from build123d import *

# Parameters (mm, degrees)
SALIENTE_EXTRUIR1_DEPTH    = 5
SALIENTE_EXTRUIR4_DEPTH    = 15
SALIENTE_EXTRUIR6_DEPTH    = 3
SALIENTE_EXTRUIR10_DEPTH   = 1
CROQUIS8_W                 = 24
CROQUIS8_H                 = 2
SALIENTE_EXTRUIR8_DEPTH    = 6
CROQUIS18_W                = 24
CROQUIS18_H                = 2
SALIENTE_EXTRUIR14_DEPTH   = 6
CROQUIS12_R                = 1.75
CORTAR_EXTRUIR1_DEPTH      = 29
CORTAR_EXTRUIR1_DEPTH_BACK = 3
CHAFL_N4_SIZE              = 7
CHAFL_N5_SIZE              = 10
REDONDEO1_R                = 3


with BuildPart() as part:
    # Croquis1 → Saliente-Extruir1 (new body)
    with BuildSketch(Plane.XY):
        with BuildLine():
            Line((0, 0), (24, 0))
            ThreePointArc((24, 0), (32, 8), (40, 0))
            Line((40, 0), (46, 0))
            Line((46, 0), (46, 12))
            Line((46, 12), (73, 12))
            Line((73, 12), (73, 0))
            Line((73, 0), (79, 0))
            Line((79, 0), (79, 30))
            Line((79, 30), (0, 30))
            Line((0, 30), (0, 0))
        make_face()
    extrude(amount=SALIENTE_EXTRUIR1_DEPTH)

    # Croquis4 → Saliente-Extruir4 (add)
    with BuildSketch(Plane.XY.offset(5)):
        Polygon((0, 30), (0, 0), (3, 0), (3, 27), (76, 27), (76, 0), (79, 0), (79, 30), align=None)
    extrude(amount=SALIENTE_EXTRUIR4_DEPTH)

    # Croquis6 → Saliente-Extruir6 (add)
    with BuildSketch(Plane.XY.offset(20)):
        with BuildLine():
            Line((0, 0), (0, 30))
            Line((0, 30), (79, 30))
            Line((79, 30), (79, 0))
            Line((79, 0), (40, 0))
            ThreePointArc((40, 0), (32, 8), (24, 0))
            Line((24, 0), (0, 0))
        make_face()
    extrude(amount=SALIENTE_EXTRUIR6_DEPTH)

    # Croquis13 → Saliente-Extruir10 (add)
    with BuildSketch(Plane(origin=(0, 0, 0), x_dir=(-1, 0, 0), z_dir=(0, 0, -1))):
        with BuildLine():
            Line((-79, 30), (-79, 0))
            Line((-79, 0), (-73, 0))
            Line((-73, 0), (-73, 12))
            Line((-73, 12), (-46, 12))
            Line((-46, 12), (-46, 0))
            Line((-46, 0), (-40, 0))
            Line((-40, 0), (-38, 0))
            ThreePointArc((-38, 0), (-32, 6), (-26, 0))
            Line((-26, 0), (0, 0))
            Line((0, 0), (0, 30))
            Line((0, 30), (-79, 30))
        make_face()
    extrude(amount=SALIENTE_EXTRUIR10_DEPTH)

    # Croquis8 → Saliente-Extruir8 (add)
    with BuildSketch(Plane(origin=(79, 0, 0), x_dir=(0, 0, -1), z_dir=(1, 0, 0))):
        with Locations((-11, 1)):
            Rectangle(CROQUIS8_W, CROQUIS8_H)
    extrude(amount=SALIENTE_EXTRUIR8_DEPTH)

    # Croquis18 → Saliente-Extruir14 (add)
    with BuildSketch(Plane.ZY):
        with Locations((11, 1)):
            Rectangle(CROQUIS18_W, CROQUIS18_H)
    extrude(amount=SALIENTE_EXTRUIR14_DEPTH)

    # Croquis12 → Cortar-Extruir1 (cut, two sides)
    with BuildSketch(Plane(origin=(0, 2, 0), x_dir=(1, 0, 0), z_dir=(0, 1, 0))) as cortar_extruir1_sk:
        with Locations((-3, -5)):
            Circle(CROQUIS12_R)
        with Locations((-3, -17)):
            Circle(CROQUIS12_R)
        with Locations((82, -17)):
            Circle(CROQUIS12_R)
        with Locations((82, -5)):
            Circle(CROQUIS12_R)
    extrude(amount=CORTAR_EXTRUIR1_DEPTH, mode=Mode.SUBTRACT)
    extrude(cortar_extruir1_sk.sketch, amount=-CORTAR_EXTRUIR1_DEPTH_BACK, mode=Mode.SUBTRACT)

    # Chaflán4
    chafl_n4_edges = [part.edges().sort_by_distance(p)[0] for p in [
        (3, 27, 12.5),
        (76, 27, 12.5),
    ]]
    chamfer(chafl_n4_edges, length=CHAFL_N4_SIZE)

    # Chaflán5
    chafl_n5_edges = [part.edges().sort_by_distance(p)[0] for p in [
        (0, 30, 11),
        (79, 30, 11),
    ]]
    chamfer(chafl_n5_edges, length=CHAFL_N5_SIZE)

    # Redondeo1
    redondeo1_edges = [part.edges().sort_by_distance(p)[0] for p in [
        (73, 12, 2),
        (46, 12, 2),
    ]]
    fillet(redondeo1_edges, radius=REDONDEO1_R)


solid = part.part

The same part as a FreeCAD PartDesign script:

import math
import FreeCAD as App
import Part
import Sketcher

V = App.Vector


def edges_at(feature, points):
    """Names of the edges that pass closest to the given points."""
    edges = feature.Shape.Edges
    near = lambda p: min(range(len(edges)), key=lambda i: edges[i].distToShape(Part.Vertex(*p))[0])
    return sorted({f"Edge{near(p) + 1}" for p in points})

doc = App.newDocument("Part")
params = doc.addObject("Spreadsheet::Sheet", "Params")
for row, (alias, value) in enumerate([
    ("sketch1_radius", "8 mm"),
    ("sketch1_width", "24 mm"),
    ("sketch1_width2", "6 mm"),
    ("sketch1_width3", "27 mm"),
    ("sketch1_height", "12 mm"),
    ("pad1_length", "5 mm"),
    ("sketch2_width", "3 mm"),
    ("sketch2_width2", "73 mm"),
    ("sketch2_height", "30 mm"),
    ("sketch2_height2", "27 mm"),
    ("pad2_length", "15 mm"),
    ("sketch3_radius", "8 mm"),
    ("sketch3_width", "24 mm"),
    ("sketch3_width2", "39 mm"),
    ("sketch3_height", "30 mm"),
    ("pad3_length", "3 mm"),
    ("sketch4_radius", "6 mm"),
    ("sketch4_width", "6 mm"),
    ("sketch4_width2", "27 mm"),
    ("sketch4_width3", "8 mm"),
    ("sketch4_width4", "26 mm"),
    ("pad4_length", "1 mm"),
    ("sketch5_width", "2 mm"),
    ("sketch5_height", "24 mm"),
    ("pad5_length", "6 mm"),
    ("sketch6_width", "2 mm"),
    ("sketch6_height", "24 mm"),
    ("pad6_length", "6 mm"),
    ("sketch7_diameter", "3.5 mm"),
    ("chamfer_size", "7 mm"),
    ("chamfer2_size", "10 mm"),
    ("fillet_radius", "3 mm"),
], start=1):
    params.set(f"A{row}", alias)
    params.set(f"B{row}", "=" + value)
    params.setAlias(f"B{row}", alias)

body = doc.addObject("PartDesign::Body", "Body")

# Sketch on XY plane
sketch1 = body.newObject("Sketcher::SketchObject", "Sketch")
sketch1.AttachmentSupport = (doc.getObject("XY_Plane"), [""])
sketch1.MapMode = "FlatFace"
sketch1.addGeometry([
    Part.LineSegment(V(0, 0, 0), V(24, 0, 0)),  # 0
    Part.ArcOfCircle(Part.Circle(V(32, 0, 0), V(0, 0, 1), 8), math.radians(0), math.radians(180)),  # 1
    Part.LineSegment(V(40, 0, 0), V(46, 0, 0)),  # 2
    Part.LineSegment(V(46, 0, 0), V(46, 12, 0)),  # 3
    Part.LineSegment(V(46, 12, 0), V(73, 12, 0)),  # 4
    Part.LineSegment(V(73, 12, 0), V(73, 0, 0)),  # 5
    Part.LineSegment(V(73, 0, 0), V(79, 0, 0)),  # 6
    Part.LineSegment(V(79, 0, 0), V(79, 30, 0)),  # 7
    Part.LineSegment(V(79, 30, 0), V(0, 30, 0)),  # 8
    Part.LineSegment(V(0, 30, 0), V(0, 0, 0)),  # 9
], False)
sketch1.addConstraint([
    Sketcher.Constraint("Coincident", 0, 2, 1, 2),
    Sketcher.Constraint("Coincident", 1, 1, 2, 1),
    Sketcher.Constraint("Coincident", 2, 2, 3, 1),
    Sketcher.Constraint("Coincident", 3, 2, 4, 1),
    Sketcher.Constraint("Coincident", 4, 2, 5, 1),
    Sketcher.Constraint("Coincident", 5, 2, 6, 1),
    Sketcher.Constraint("Coincident", 6, 2, 7, 1),
    Sketcher.Constraint("Coincident", 7, 2, 8, 1),
    Sketcher.Constraint("Coincident", 8, 2, 9, 1),
    Sketcher.Constraint("Coincident", 9, 2, 0, 1),
    Sketcher.Constraint("Horizontal", 0),
    Sketcher.Constraint("Horizontal", 2),
    Sketcher.Constraint("Vertical", 3),
    Sketcher.Constraint("Horizontal", 4),
    Sketcher.Constraint("Vertical", 5),
    Sketcher.Constraint("Horizontal", 6),
    Sketcher.Constraint("Vertical", 7),
    Sketcher.Constraint("Horizontal", 8),
    Sketcher.Constraint("Vertical", 9),
    Sketcher.Constraint("Coincident", 9, 2, -1, 1),
    Sketcher.Constraint("PointOnObject", 1, 3, -1),
    Sketcher.Constraint("PointOnObject", 1, 1, -1),
    Sketcher.Constraint("PointOnObject", 5, 2, -1),
    Sketcher.Constraint("Equal", 2, 6),
    Sketcher.Constraint("Radius", 1, 8.0),
    Sketcher.Constraint("DistanceX", 0, 1, 0, 2, 24.0),
    Sketcher.Constraint("DistanceX", 2, 1, 2, 2, 6.0),
    Sketcher.Constraint("DistanceX", 4, 1, 4, 2, 27.0),
    Sketcher.Constraint("DistanceY", 3, 1, 3, 2, 12.0),
    Sketcher.Constraint("DistanceY", 7, 1, 7, 2, 30.0),
])
sketch1.setExpression("Constraints[24]", "Params.sketch1_radius")
sketch1.setExpression("Constraints[25]", "Params.sketch1_width")
sketch1.setExpression("Constraints[26]", "Params.sketch1_width2")
sketch1.setExpression("Constraints[27]", "Params.sketch1_width3")
sketch1.setExpression("Constraints[28]", "Params.sketch1_height")
pad1 = body.newObject("PartDesign::Pad", "Pad")
pad1.Profile = sketch1
pad1.setExpression("Length", "Params.pad1_length")

# Sketch on XY plane
sketch2 = body.newObject("Sketcher::SketchObject", "Sketch001")
sketch2.AttachmentSupport = (doc.getObject("XY_Plane"), [""])
sketch2.MapMode = "FlatFace"
sketch2.AttachmentOffset = App.Placement(V(0, 0, 5), App.Rotation())
sketch2.addGeometry([
    Part.LineSegment(V(0, 30, 0), V(0, 0, 0)),  # 0
    Part.LineSegment(V(0, 0, 0), V(3, 0, 0)),  # 1
    Part.LineSegment(V(3, 0, 0), V(3, 27, 0)),  # 2
    Part.LineSegment(V(3, 27, 0), V(76, 27, 0)),  # 3
    Part.LineSegment(V(76, 27, 0), V(76, 0, 0)),  # 4
    Part.LineSegment(V(76, 0, 0), V(79, 0, 0)),  # 5
    Part.LineSegment(V(79, 0, 0), V(79, 30, 0)),  # 6
    Part.LineSegment(V(79, 30, 0), V(0, 30, 0)),  # 7
], False)
sketch2.addConstraint([
    Sketcher.Constraint("Coincident", 0, 2, 1, 1),
    Sketcher.Constraint("Coincident", 1, 2, 2, 1),
    Sketcher.Constraint("Coincident", 2, 2, 3, 1),
    Sketcher.Constraint("Coincident", 3, 2, 4, 1),
    Sketcher.Constraint("Coincident", 4, 2, 5, 1),
    Sketcher.Constraint("Coincident", 5, 2, 6, 1),
    Sketcher.Constraint("Coincident", 6, 2, 7, 1),
    Sketcher.Constraint("Coincident", 7, 2, 0, 1),
    Sketcher.Constraint("Vertical", 0),
    Sketcher.Constraint("Horizontal", 1),
    Sketcher.Constraint("Vertical", 2),
    Sketcher.Constraint("Horizontal", 3),
    Sketcher.Constraint("Vertical", 4),
    Sketcher.Constraint("Horizontal", 5),
    Sketcher.Constraint("Vertical", 6),
    Sketcher.Constraint("Horizontal", 7),
    Sketcher.Constraint("Coincident", 0, 2, -1, 1),
    Sketcher.Constraint("PointOnObject", 4, 2, -1),
    Sketcher.Constraint("Equal", 1, 5),
    Sketcher.Constraint("DistanceX", 1, 1, 1, 2, 3.0),
    Sketcher.Constraint("DistanceX", 3, 1, 3, 2, 73.0),
    Sketcher.Constraint("DistanceY", 0, 2, 0, 1, 30.0),
    Sketcher.Constraint("DistanceY", 2, 1, 2, 2, 27.0),
])
sketch2.setExpression("Constraints[19]", "Params.sketch2_width")
sketch2.setExpression("Constraints[20]", "Params.sketch2_width2")
sketch2.setExpression("Constraints[21]", "Params.sketch2_height")
sketch2.setExpression("Constraints[22]", "Params.sketch2_height2")
pad2 = body.newObject("PartDesign::Pad", "Pad001")
pad2.Profile = sketch2
pad2.setExpression("Length", "Params.pad2_length")

# Sketch on XY plane
sketch3 = body.newObject("Sketcher::SketchObject", "Sketch002")
sketch3.AttachmentSupport = (doc.getObject("XY_Plane"), [""])
sketch3.MapMode = "FlatFace"
sketch3.AttachmentOffset = App.Placement(V(0, 0, 20), App.Rotation())
sketch3.addGeometry([
    Part.LineSegment(V(0, 30, 0), V(0, 0, 0)),  # 0
    Part.LineSegment(V(0, 0, 0), V(24, 0, 0)),  # 1
    Part.ArcOfCircle(Part.Circle(V(32, 0, 0), V(0, 0, 1), 8), math.radians(0), math.radians(180)),  # 2
    Part.LineSegment(V(40, 0, 0), V(79, 0, 0)),  # 3
    Part.LineSegment(V(79, 0, 0), V(79, 30, 0)),  # 4
    Part.LineSegment(V(79, 30, 0), V(0, 30, 0)),  # 5
], False)
sketch3.addConstraint([
    Sketcher.Constraint("Coincident", 0, 2, 1, 1),
    Sketcher.Constraint("Coincident", 1, 2, 2, 2),
    Sketcher.Constraint("Coincident", 2, 1, 3, 1),
    Sketcher.Constraint("Coincident", 3, 2, 4, 1),
    Sketcher.Constraint("Coincident", 4, 2, 5, 1),
    Sketcher.Constraint("Coincident", 5, 2, 0, 1),
    Sketcher.Constraint("Vertical", 0),
    Sketcher.Constraint("Horizontal", 1),
    Sketcher.Constraint("Horizontal", 3),
    Sketcher.Constraint("Vertical", 4),
    Sketcher.Constraint("Horizontal", 5),
    Sketcher.Constraint("Coincident", 0, 2, -1, 1),
    Sketcher.Constraint("PointOnObject", 2, 3, -1),
    Sketcher.Constraint("PointOnObject", 2, 1, -1),
    Sketcher.Constraint("Radius", 2, 8.0),
    Sketcher.Constraint("DistanceX", 1, 1, 1, 2, 24.0),
    Sketcher.Constraint("DistanceX", 3, 1, 3, 2, 39.0),
    Sketcher.Constraint("DistanceY", 0, 2, 0, 1, 30.0),
])
sketch3.setExpression("Constraints[14]", "Params.sketch3_radius")
sketch3.setExpression("Constraints[15]", "Params.sketch3_width")
sketch3.setExpression("Constraints[16]", "Params.sketch3_width2")
sketch3.setExpression("Constraints[17]", "Params.sketch3_height")
pad3 = body.newObject("PartDesign::Pad", "Pad002")
pad3.Profile = sketch3
pad3.setExpression("Length", "Params.pad3_length")

# Sketch on XY plane
sketch4 = body.newObject("Sketcher::SketchObject", "Sketch003")
sketch4.AttachmentSupport = (doc.getObject("XY_Plane"), [""])
sketch4.MapMode = "FlatFace"
sketch4.addGeometry([
    Part.LineSegment(V(79, 30, 0), V(79, 0, 0)),  # 0
    Part.LineSegment(V(79, 0, 0), V(73, 0, 0)),  # 1
    Part.LineSegment(V(73, 0, 0), V(73, 12, 0)),  # 2
    Part.LineSegment(V(73, 12, 0), V(46, 12, 0)),  # 3
    Part.LineSegment(V(46, 12, 0), V(46, 0, 0)),  # 4
    Part.LineSegment(V(46, 0, 0), V(38, 0, 0)),  # 5
    Part.ArcOfCircle(Part.Circle(V(32, 0, 0), V(0, 0, 1), 6), math.radians(0), math.radians(180)),  # 6
    Part.LineSegment(V(26, 0, 0), V(0, 0, 0)),  # 7
    Part.LineSegment(V(0, 0, 0), V(0, 30, 0)),  # 8
    Part.LineSegment(V(0, 30, 0), V(79, 30, 0)),  # 9
], False)
sketch4.addConstraint([
    Sketcher.Constraint("Coincident", 0, 2, 1, 1),
    Sketcher.Constraint("Coincident", 1, 2, 2, 1),
    Sketcher.Constraint("Coincident", 2, 2, 3, 1),
    Sketcher.Constraint("Coincident", 3, 2, 4, 1),
    Sketcher.Constraint("Coincident", 4, 2, 5, 1),
    Sketcher.Constraint("Coincident", 5, 2, 6, 1),
    Sketcher.Constraint("Coincident", 6, 2, 7, 1),
    Sketcher.Constraint("Coincident", 7, 2, 8, 1),
    Sketcher.Constraint("Coincident", 8, 2, 9, 1),
    Sketcher.Constraint("Coincident", 9, 2, 0, 1),
    Sketcher.Constraint("Vertical", 0),
    Sketcher.Constraint("Horizontal", 1),
    Sketcher.Constraint("Vertical", 2),
    Sketcher.Constraint("Horizontal", 3),
    Sketcher.Constraint("Vertical", 4),
    Sketcher.Constraint("Horizontal", 5),
    Sketcher.Constraint("Horizontal", 7),
    Sketcher.Constraint("Vertical", 8),
    Sketcher.Constraint("Horizontal", 9),
    Sketcher.Constraint("Coincident", 7, 2, -1, 1),
    Sketcher.Constraint("PointOnObject", 6, 3, -1),
    Sketcher.Constraint("PointOnObject", 0, 2, -1),
    Sketcher.Constraint("PointOnObject", 4, 2, -1),
    Sketcher.Constraint("Radius", 6, 6.0),
    Sketcher.Constraint("DistanceX", 1, 2, 1, 1, 6.0),
    Sketcher.Constraint("DistanceX", 3, 2, 3, 1, 27.0),
    Sketcher.Constraint("DistanceX", 5, 2, 5, 1, 8.0),
    Sketcher.Constraint("DistanceX", 7, 2, 7, 1, 26.0),
    Sketcher.Constraint("DistanceY", 0, 2, 0, 1, 30.0),
    Sketcher.Constraint("DistanceY", 2, 1, 2, 2, 12.0),
])
sketch4.setExpression("Constraints[23]", "Params.sketch4_radius")
sketch4.setExpression("Constraints[24]", "Params.sketch4_width")
sketch4.setExpression("Constraints[25]", "Params.sketch4_width2")
sketch4.setExpression("Constraints[26]", "Params.sketch4_width3")
sketch4.setExpression("Constraints[27]", "Params.sketch4_width4")
pad4 = body.newObject("PartDesign::Pad", "Pad003")
pad4.Profile = sketch4
pad4.setExpression("Length", "Params.pad4_length")
pad4.Reversed = True

# Sketch on YZ plane
sketch5 = body.newObject("Sketcher::SketchObject", "Sketch004")
sketch5.AttachmentSupport = (doc.getObject("YZ_Plane"), [""])
sketch5.MapMode = "FlatFace"
sketch5.AttachmentOffset = App.Placement(V(0, 0, 79), App.Rotation())
sketch5.addGeometry([
    Part.LineSegment(V(2, 23, 0), V(0, 23, 0)),
    Part.LineSegment(V(0, 23, 0), V(0, -1, 0)),
    Part.LineSegment(V(0, -1, 0), V(2, -1, 0)),
    Part.LineSegment(V(2, -1, 0), V(2, 23, 0)),
], False)
sketch5.addConstraint([
    Sketcher.Constraint("Coincident", 0, 2, 1, 1),
    Sketcher.Constraint("Coincident", 1, 2, 2, 1),
    Sketcher.Constraint("Coincident", 2, 2, 3, 1),
    Sketcher.Constraint("Coincident", 3, 2, 0, 1),
    Sketcher.Constraint("Horizontal", 0),
    Sketcher.Constraint("Vertical", 1),
    Sketcher.Constraint("Horizontal", 2),
    Sketcher.Constraint("Vertical", 3),
    Sketcher.Constraint("PointOnObject", 0, 2, -2),
    Sketcher.Constraint("DistanceX", 0, 2, 0, 1, 2.0),
    Sketcher.Constraint("DistanceY", 1, 2, 1, 1, 24.0),
    Sketcher.Constraint("DistanceY", -1, 1, 0, 2, 23.0),
])
sketch5.setExpression("Constraints[9]", "Params.sketch5_width")
sketch5.setExpression("Constraints[10]", "Params.sketch5_height")
pad5 = body.newObject("PartDesign::Pad", "Pad004")
pad5.Profile = sketch5
pad5.setExpression("Length", "Params.pad5_length")

# Sketch on YZ plane
sketch6 = body.newObject("Sketcher::SketchObject", "Sketch005")
sketch6.AttachmentSupport = (doc.getObject("YZ_Plane"), [""])
sketch6.MapMode = "FlatFace"
sketch6.addGeometry([
    Part.LineSegment(V(2, -1, 0), V(0, -1, 0)),
    Part.LineSegment(V(0, -1, 0), V(0, 23, 0)),
    Part.LineSegment(V(0, 23, 0), V(2, 23, 0)),
    Part.LineSegment(V(2, 23, 0), V(2, -1, 0)),
], False)
sketch6.addConstraint([
    Sketcher.Constraint("Coincident", 0, 2, 1, 1),
    Sketcher.Constraint("Coincident", 1, 2, 2, 1),
    Sketcher.Constraint("Coincident", 2, 2, 3, 1),
    Sketcher.Constraint("Coincident", 3, 2, 0, 1),
    Sketcher.Constraint("Horizontal", 0),
    Sketcher.Constraint("Vertical", 1),
    Sketcher.Constraint("Horizontal", 2),
    Sketcher.Constraint("Vertical", 3),
    Sketcher.Constraint("PointOnObject", 0, 2, -2),
    Sketcher.Constraint("DistanceX", 0, 2, 0, 1, 2.0),
    Sketcher.Constraint("DistanceY", 1, 1, 1, 2, 24.0),
    Sketcher.Constraint("DistanceY", 0, 2, -1, 1, 1.0),
])
sketch6.setExpression("Constraints[9]", "Params.sketch6_width")
sketch6.setExpression("Constraints[10]", "Params.sketch6_height")
pad6 = body.newObject("PartDesign::Pad", "Pad005")
pad6.Profile = sketch6
pad6.setExpression("Length", "Params.pad6_length")
pad6.Reversed = True

# Sketch on XZ plane
sketch7 = body.newObject("Sketcher::SketchObject", "Sketch006")
sketch7.AttachmentSupport = (doc.getObject("XZ_Plane"), [""])
sketch7.MapMode = "FlatFace"
sketch7.AttachmentOffset = App.Placement(V(0, 0, -2), App.Rotation())
sketch7.addGeometry([
    Part.Circle(V(-3, 5, 0), V(0, 0, 1), 1.8),
    Part.Circle(V(-3, 17, 0), V(0, 0, 1), 1.8),
    Part.Circle(V(82, 17, 0), V(0, 0, 1), 1.8),
    Part.Circle(V(82, 5, 0), V(0, 0, 1), 1.8),
], False)
sketch7.addConstraint([
    Sketcher.Constraint("Equal", 0, 1),
    Sketcher.Constraint("Equal", 1, 2),
    Sketcher.Constraint("Equal", 2, 3),
    Sketcher.Constraint("Horizontal", 1, 3, 2, 3),
    Sketcher.Constraint("Horizontal", 0, 3, 3, 3),
    Sketcher.Constraint("Vertical", 0, 3, 1, 3),
    Sketcher.Constraint("Vertical", 2, 3, 3, 3),
    Sketcher.Constraint("Diameter", 0, 3.5),
    Sketcher.Constraint("DistanceX", 0, 3, -1, 1, 3.0),
    Sketcher.Constraint("DistanceY", -1, 1, 0, 3, 5.0),
    Sketcher.Constraint("DistanceY", -1, 1, 1, 3, 17.0),
    Sketcher.Constraint("DistanceX", -1, 1, 2, 3, 82.0),
])
sketch7.setExpression("Constraints[7]", "Params.sketch7_diameter")
pocket1 = body.newObject("PartDesign::Pocket", "Pocket")
pocket1.Profile = sketch7
pocket1.Type = "ThroughAll"
pocket1.Midplane = True
doc.recompute()

chamfer = body.newObject("PartDesign::Chamfer", "Chamfer")
chamfer.Base = (pocket1, edges_at(pocket1, [(3, 27, 12.5), (76, 27, 12.5)]))
chamfer.setExpression("Size", "Params.chamfer_size")
doc.recompute()

chamfer2 = body.newObject("PartDesign::Chamfer", "Chamfer001")
chamfer2.Base = (chamfer, edges_at(chamfer, [(0, 30, 11), (79, 30, 11)]))
chamfer2.setExpression("Size", "Params.chamfer2_size")
doc.recompute()

fillet = body.newObject("PartDesign::Fillet", "Fillet")
fillet.Base = (chamfer2, edges_at(chamfer2, [(73, 12, 2), (46, 12, 2)]))
fillet.setExpression("Radius", "Params.fillet_radius")

doc.recompute()
